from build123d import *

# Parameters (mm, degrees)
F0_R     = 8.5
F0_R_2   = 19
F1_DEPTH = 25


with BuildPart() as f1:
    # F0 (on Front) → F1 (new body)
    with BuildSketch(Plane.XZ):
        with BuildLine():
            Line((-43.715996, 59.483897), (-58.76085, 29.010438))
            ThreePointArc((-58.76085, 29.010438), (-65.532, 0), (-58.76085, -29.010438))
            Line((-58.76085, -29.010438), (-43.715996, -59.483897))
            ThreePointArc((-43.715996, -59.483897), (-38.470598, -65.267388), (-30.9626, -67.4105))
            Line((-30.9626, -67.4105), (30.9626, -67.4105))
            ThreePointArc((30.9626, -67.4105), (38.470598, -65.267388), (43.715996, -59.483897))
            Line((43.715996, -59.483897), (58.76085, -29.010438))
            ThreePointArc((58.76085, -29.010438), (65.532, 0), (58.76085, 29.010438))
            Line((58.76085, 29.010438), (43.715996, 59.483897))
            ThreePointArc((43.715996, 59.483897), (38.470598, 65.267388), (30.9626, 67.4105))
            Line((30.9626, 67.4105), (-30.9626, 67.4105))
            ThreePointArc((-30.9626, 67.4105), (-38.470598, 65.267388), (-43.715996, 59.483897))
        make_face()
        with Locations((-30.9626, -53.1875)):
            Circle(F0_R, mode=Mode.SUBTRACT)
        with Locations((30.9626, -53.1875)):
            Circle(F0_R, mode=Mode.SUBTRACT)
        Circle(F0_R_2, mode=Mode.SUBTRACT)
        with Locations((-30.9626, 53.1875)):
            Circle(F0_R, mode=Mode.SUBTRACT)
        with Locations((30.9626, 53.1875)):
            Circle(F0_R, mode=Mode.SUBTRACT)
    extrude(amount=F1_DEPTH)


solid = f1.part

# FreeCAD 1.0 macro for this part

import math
import FreeCAD as App
import Part
import Sketcher

V = App.Vector
Q = App.Units.Quantity

doc = App.newDocument("Part")
body = doc.addObject("PartDesign::Body", "Body")

# Sketch on XZ plane
sketch1 = body.newObject("Sketcher::SketchObject", "Sketch")
sketch1.AttachmentSupport = (doc.getObject("XZ_Plane"), [""])
sketch1.MapMode = "FlatFace"
sketch1.addGeometry([
    Part.LineSegment(V(-44, 59, 0), V(-59, 29, 0)),  # 0
    Part.ArcOfCircle(Part.Circle(V(0, 0, 0), V(0, 0, 1), 66), math.radians(154), math.radians(206)),  # 1
    Part.LineSegment(V(-59, -29, 0), V(-44, -59, 0)),  # 2
    Part.ArcOfCircle(Part.Circle(V(-31, -53, 0), V(0, 0, 1), 14), math.radians(-154), math.radians(-90)),  # 3
    Part.LineSegment(V(-31, -67, 0), V(31, -67, 0)),  # 4
    Part.ArcOfCircle(Part.Circle(V(31, -53, 0), V(0, 0, 1), 14), math.radians(-90), math.radians(-26)),  # 5
    Part.LineSegment(V(44, -59, 0), V(59, -29, 0)),  # 6
    Part.ArcOfCircle(Part.Circle(V(0, 0, 0), V(0, 0, 1), 66), math.radians(-26), math.radians(26)),  # 7
    Part.LineSegment(V(59, 29, 0), V(44, 59, 0)),  # 8
    Part.ArcOfCircle(Part.Circle(V(31, 53, 0), V(0, 0, 1), 14), math.radians(26), math.radians(90)),  # 9
    Part.LineSegment(V(31, 67, 0), V(-31, 67, 0)),  # 10
    Part.ArcOfCircle(Part.Circle(V(-31, 53, 0), V(0, 0, 1), 14), math.radians(90), math.radians(154)),  # 11
    Part.Circle(V(-31, -53, 0), V(0, 0, 1), 8),  # 12
    Part.Circle(V(31, -53, 0), V(0, 0, 1), 8),  # 13
    Part.Circle(V(-31, 53, 0), V(0, 0, 1), 8),  # 14
    Part.Circle(V(0, 0, 0), V(0, 0, 1), 19),  # 15
    Part.Circle(V(31, 53, 0), V(0, 0, 1), 8),  # 16
], False)
sketch1.addConstraint([
    Sketcher.Constraint("Tangent", 0, 2, 1, 1),
    Sketcher.Constraint("Tangent", 1, 2, 2, 1),
    Sketcher.Constraint("Tangent", 2, 2, 3, 1),
    Sketcher.Constraint("Tangent", 3, 2, 4, 1),
    Sketcher.Constraint("Tangent", 4, 2, 5, 1),
    Sketcher.Constraint("Tangent", 5, 2, 6, 1),
    Sketcher.Constraint("Tangent", 6, 2, 7, 1),
    Sketcher.Constraint("Tangent", 7, 2, 8, 1),
    Sketcher.Constraint("Tangent", 8, 2, 9, 1),
    Sketcher.Constraint("Tangent", 9, 2, 10, 1),
    Sketcher.Constraint("Tangent", 10, 2, 11, 1),
    Sketcher.Constraint("Tangent", 11, 2, 0, 1),
    Sketcher.Constraint("Horizontal", 4),
    Sketcher.Constraint("Horizontal", 10),
    Sketcher.Constraint("Coincident", 1, 3, -1, 1),
    Sketcher.Constraint("Coincident", 7, 3, -1, 1),
    Sketcher.Constraint("Coincident", 15, 3, -1, 1),
    Sketcher.Constraint("Coincident", 12, 3, 3, 3),
    Sketcher.Constraint("Coincident", 13, 3, 5, 3),
    Sketcher.Constraint("Coincident", 14, 3, 11, 3),
    Sketcher.Constraint("Coincident", 16, 3, 9, 3),
    Sketcher.Constraint("Equal", 3, 5),
    Sketcher.Constraint("Equal", 1, 7),
    Sketcher.Constraint("Equal", 5, 9),
    Sketcher.Constraint("Equal", 9, 11),
    Sketcher.Constraint("Equal", 12, 13),
    Sketcher.Constraint("Equal", 13, 14),
    Sketcher.Constraint("Equal", 14, 16),
    Sketcher.Constraint("Symmetric", 3, 3, 9, 3, -1, 1),
    Sketcher.Constraint("Parallel", 0, 6),
    Sketcher.Constraint("Horizontal", 2, 2, 5, 2),
    Sketcher.Constraint("Diameter", 12, Q("17 mm")),
    Sketcher.Constraint("Diameter", 15, Q("38 mm")),
    Sketcher.Constraint("Radius", 1, Q("65.531999 mm")),
    Sketcher.Constraint("Radius", 3, Q("14.223 mm")),
    Sketcher.Constraint("DistanceX", 4, 1, 4, 2, Q("61.9252 mm")),
    Sketcher.Constraint("DistanceY", 5, 3, 9, 3, Q("106.375001 mm")),
])
pad1 = body.newObject("PartDesign::Pad", "Pad")
pad1.Profile = sketch1
pad1.Length = 25

doc.recompute()
